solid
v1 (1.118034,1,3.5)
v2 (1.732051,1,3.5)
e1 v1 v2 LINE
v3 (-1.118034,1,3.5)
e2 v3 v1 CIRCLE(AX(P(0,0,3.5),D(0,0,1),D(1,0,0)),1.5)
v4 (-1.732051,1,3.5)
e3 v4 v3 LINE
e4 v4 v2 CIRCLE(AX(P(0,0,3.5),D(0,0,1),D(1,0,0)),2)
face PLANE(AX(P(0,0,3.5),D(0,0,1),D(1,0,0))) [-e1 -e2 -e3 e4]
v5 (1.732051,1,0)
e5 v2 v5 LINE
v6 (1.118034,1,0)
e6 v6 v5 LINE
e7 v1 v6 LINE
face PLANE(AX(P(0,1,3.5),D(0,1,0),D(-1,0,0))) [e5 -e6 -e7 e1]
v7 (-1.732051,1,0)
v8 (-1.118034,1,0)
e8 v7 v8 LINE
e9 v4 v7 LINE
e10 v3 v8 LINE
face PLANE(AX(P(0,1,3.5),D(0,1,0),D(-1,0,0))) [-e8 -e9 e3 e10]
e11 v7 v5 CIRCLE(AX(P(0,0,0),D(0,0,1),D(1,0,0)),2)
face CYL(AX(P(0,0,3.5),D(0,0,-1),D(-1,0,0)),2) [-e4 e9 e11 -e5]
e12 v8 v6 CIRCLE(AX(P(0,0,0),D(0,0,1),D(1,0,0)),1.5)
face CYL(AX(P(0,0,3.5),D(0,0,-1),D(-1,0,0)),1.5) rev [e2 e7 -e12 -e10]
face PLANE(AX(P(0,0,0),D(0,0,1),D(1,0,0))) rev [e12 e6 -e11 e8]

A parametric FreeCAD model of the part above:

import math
import FreeCAD as App
import Part
import Sketcher
from FreeCAD import Vector

doc = App.newDocument("Part")
body = doc.addObject("PartDesign::Body", "Body")

sketch1 = body.newObject("Sketcher::SketchObject", "Sketch")
sketch1.AttachmentSupport = (doc.getObject("XY_Plane"), [""])
sketch1.MapMode = "FlatFace"
sketch1.addGeometry(Part.LineSegment(Vector(-1.118034, 1, 0), Vector(-1.732051, 1, 0)), False)
sketch1.addGeometry(Part.ArcOfCircle(Part.Circle(Vector(0, 0, 0), Vector(0, 0, 1), 2), math.radians(150), math.radians(360)), False)
sketch1.addGeometry(Part.ArcOfCircle(Part.Circle(Vector(0, 0, 0), Vector(0, 0, 1), 2), math.radians(0), math.radians(30)), False)
sketch1.addGeometry(Part.LineSegment(Vector(1.732051, 1, 0), Vector(1.118034, 1, 0)), False)
sketch1.addGeometry(Part.ArcOfCircle(Part.Circle(Vector(0, 0, 0), Vector(0, 0, 1), 1.5), math.radians(0), math.radians(41.810315)), False)
sketch1.addGeometry(Part.ArcOfCircle(Part.Circle(Vector(0, 0, 0), Vector(0, 0, 1), 1.5), math.radians(138.189685), math.radians(360)), False)
sketch1.addConstraint(Sketcher.Constraint("Coincident", 0, 2, 1, 1))
sketch1.addConstraint(Sketcher.Constraint("Tangent", 1, 2, 2, 1))
sketch1.addConstraint(Sketcher.Constraint("Coincident", 2, 2, 3, 1))
sketch1.addConstraint(Sketcher.Constraint("Coincident", 3, 2, 4, 2))
sketch1.addConstraint(Sketcher.Constraint("Tangent", 4, 1, 5, 2))
sketch1.addConstraint(Sketcher.Constraint("Coincident", 5, 1, 0, 1))
sketch1.addConstraint(Sketcher.Constraint("Horizontal", 0))
sketch1.addConstraint(Sketcher.Constraint("Horizontal", 3))
sketch1.addConstraint(Sketcher.Constraint("Coincident", 1, 3, -1, 1))
sketch1.addConstraint(Sketcher.Constraint("Coincident", 4, 3, -1, 1))
sketch1.addConstraint(Sketcher.Constraint("Equal", 1, 2))
sketch1.addConstraint(Sketcher.Constraint("Equal", 4, 5))
sketch1.addConstraint(Sketcher.Constraint("PointOnObject", 1, 2, -1))
sketch1.addConstraint(Sketcher.Constraint("PointOnObject", 4, 1, -1))
sketch1.addConstraint(Sketcher.Constraint("Horizontal", 0, 2, 2, 2))
sketch1.addConstraint(Sketcher.Constraint("Radius", 1, 2.0))
sketch1.addConstraint(Sketcher.Constraint("Radius", 4, 1.5))
sketch1.addConstraint(Sketcher.Constraint("DistanceY", -1, 1, 0, 2, 1.0))
pad1 = body.newObject("PartDesign::Pad", "Pad")
pad1.Profile = sketch1
pad1.Length = 3.5

doc.recompute()
